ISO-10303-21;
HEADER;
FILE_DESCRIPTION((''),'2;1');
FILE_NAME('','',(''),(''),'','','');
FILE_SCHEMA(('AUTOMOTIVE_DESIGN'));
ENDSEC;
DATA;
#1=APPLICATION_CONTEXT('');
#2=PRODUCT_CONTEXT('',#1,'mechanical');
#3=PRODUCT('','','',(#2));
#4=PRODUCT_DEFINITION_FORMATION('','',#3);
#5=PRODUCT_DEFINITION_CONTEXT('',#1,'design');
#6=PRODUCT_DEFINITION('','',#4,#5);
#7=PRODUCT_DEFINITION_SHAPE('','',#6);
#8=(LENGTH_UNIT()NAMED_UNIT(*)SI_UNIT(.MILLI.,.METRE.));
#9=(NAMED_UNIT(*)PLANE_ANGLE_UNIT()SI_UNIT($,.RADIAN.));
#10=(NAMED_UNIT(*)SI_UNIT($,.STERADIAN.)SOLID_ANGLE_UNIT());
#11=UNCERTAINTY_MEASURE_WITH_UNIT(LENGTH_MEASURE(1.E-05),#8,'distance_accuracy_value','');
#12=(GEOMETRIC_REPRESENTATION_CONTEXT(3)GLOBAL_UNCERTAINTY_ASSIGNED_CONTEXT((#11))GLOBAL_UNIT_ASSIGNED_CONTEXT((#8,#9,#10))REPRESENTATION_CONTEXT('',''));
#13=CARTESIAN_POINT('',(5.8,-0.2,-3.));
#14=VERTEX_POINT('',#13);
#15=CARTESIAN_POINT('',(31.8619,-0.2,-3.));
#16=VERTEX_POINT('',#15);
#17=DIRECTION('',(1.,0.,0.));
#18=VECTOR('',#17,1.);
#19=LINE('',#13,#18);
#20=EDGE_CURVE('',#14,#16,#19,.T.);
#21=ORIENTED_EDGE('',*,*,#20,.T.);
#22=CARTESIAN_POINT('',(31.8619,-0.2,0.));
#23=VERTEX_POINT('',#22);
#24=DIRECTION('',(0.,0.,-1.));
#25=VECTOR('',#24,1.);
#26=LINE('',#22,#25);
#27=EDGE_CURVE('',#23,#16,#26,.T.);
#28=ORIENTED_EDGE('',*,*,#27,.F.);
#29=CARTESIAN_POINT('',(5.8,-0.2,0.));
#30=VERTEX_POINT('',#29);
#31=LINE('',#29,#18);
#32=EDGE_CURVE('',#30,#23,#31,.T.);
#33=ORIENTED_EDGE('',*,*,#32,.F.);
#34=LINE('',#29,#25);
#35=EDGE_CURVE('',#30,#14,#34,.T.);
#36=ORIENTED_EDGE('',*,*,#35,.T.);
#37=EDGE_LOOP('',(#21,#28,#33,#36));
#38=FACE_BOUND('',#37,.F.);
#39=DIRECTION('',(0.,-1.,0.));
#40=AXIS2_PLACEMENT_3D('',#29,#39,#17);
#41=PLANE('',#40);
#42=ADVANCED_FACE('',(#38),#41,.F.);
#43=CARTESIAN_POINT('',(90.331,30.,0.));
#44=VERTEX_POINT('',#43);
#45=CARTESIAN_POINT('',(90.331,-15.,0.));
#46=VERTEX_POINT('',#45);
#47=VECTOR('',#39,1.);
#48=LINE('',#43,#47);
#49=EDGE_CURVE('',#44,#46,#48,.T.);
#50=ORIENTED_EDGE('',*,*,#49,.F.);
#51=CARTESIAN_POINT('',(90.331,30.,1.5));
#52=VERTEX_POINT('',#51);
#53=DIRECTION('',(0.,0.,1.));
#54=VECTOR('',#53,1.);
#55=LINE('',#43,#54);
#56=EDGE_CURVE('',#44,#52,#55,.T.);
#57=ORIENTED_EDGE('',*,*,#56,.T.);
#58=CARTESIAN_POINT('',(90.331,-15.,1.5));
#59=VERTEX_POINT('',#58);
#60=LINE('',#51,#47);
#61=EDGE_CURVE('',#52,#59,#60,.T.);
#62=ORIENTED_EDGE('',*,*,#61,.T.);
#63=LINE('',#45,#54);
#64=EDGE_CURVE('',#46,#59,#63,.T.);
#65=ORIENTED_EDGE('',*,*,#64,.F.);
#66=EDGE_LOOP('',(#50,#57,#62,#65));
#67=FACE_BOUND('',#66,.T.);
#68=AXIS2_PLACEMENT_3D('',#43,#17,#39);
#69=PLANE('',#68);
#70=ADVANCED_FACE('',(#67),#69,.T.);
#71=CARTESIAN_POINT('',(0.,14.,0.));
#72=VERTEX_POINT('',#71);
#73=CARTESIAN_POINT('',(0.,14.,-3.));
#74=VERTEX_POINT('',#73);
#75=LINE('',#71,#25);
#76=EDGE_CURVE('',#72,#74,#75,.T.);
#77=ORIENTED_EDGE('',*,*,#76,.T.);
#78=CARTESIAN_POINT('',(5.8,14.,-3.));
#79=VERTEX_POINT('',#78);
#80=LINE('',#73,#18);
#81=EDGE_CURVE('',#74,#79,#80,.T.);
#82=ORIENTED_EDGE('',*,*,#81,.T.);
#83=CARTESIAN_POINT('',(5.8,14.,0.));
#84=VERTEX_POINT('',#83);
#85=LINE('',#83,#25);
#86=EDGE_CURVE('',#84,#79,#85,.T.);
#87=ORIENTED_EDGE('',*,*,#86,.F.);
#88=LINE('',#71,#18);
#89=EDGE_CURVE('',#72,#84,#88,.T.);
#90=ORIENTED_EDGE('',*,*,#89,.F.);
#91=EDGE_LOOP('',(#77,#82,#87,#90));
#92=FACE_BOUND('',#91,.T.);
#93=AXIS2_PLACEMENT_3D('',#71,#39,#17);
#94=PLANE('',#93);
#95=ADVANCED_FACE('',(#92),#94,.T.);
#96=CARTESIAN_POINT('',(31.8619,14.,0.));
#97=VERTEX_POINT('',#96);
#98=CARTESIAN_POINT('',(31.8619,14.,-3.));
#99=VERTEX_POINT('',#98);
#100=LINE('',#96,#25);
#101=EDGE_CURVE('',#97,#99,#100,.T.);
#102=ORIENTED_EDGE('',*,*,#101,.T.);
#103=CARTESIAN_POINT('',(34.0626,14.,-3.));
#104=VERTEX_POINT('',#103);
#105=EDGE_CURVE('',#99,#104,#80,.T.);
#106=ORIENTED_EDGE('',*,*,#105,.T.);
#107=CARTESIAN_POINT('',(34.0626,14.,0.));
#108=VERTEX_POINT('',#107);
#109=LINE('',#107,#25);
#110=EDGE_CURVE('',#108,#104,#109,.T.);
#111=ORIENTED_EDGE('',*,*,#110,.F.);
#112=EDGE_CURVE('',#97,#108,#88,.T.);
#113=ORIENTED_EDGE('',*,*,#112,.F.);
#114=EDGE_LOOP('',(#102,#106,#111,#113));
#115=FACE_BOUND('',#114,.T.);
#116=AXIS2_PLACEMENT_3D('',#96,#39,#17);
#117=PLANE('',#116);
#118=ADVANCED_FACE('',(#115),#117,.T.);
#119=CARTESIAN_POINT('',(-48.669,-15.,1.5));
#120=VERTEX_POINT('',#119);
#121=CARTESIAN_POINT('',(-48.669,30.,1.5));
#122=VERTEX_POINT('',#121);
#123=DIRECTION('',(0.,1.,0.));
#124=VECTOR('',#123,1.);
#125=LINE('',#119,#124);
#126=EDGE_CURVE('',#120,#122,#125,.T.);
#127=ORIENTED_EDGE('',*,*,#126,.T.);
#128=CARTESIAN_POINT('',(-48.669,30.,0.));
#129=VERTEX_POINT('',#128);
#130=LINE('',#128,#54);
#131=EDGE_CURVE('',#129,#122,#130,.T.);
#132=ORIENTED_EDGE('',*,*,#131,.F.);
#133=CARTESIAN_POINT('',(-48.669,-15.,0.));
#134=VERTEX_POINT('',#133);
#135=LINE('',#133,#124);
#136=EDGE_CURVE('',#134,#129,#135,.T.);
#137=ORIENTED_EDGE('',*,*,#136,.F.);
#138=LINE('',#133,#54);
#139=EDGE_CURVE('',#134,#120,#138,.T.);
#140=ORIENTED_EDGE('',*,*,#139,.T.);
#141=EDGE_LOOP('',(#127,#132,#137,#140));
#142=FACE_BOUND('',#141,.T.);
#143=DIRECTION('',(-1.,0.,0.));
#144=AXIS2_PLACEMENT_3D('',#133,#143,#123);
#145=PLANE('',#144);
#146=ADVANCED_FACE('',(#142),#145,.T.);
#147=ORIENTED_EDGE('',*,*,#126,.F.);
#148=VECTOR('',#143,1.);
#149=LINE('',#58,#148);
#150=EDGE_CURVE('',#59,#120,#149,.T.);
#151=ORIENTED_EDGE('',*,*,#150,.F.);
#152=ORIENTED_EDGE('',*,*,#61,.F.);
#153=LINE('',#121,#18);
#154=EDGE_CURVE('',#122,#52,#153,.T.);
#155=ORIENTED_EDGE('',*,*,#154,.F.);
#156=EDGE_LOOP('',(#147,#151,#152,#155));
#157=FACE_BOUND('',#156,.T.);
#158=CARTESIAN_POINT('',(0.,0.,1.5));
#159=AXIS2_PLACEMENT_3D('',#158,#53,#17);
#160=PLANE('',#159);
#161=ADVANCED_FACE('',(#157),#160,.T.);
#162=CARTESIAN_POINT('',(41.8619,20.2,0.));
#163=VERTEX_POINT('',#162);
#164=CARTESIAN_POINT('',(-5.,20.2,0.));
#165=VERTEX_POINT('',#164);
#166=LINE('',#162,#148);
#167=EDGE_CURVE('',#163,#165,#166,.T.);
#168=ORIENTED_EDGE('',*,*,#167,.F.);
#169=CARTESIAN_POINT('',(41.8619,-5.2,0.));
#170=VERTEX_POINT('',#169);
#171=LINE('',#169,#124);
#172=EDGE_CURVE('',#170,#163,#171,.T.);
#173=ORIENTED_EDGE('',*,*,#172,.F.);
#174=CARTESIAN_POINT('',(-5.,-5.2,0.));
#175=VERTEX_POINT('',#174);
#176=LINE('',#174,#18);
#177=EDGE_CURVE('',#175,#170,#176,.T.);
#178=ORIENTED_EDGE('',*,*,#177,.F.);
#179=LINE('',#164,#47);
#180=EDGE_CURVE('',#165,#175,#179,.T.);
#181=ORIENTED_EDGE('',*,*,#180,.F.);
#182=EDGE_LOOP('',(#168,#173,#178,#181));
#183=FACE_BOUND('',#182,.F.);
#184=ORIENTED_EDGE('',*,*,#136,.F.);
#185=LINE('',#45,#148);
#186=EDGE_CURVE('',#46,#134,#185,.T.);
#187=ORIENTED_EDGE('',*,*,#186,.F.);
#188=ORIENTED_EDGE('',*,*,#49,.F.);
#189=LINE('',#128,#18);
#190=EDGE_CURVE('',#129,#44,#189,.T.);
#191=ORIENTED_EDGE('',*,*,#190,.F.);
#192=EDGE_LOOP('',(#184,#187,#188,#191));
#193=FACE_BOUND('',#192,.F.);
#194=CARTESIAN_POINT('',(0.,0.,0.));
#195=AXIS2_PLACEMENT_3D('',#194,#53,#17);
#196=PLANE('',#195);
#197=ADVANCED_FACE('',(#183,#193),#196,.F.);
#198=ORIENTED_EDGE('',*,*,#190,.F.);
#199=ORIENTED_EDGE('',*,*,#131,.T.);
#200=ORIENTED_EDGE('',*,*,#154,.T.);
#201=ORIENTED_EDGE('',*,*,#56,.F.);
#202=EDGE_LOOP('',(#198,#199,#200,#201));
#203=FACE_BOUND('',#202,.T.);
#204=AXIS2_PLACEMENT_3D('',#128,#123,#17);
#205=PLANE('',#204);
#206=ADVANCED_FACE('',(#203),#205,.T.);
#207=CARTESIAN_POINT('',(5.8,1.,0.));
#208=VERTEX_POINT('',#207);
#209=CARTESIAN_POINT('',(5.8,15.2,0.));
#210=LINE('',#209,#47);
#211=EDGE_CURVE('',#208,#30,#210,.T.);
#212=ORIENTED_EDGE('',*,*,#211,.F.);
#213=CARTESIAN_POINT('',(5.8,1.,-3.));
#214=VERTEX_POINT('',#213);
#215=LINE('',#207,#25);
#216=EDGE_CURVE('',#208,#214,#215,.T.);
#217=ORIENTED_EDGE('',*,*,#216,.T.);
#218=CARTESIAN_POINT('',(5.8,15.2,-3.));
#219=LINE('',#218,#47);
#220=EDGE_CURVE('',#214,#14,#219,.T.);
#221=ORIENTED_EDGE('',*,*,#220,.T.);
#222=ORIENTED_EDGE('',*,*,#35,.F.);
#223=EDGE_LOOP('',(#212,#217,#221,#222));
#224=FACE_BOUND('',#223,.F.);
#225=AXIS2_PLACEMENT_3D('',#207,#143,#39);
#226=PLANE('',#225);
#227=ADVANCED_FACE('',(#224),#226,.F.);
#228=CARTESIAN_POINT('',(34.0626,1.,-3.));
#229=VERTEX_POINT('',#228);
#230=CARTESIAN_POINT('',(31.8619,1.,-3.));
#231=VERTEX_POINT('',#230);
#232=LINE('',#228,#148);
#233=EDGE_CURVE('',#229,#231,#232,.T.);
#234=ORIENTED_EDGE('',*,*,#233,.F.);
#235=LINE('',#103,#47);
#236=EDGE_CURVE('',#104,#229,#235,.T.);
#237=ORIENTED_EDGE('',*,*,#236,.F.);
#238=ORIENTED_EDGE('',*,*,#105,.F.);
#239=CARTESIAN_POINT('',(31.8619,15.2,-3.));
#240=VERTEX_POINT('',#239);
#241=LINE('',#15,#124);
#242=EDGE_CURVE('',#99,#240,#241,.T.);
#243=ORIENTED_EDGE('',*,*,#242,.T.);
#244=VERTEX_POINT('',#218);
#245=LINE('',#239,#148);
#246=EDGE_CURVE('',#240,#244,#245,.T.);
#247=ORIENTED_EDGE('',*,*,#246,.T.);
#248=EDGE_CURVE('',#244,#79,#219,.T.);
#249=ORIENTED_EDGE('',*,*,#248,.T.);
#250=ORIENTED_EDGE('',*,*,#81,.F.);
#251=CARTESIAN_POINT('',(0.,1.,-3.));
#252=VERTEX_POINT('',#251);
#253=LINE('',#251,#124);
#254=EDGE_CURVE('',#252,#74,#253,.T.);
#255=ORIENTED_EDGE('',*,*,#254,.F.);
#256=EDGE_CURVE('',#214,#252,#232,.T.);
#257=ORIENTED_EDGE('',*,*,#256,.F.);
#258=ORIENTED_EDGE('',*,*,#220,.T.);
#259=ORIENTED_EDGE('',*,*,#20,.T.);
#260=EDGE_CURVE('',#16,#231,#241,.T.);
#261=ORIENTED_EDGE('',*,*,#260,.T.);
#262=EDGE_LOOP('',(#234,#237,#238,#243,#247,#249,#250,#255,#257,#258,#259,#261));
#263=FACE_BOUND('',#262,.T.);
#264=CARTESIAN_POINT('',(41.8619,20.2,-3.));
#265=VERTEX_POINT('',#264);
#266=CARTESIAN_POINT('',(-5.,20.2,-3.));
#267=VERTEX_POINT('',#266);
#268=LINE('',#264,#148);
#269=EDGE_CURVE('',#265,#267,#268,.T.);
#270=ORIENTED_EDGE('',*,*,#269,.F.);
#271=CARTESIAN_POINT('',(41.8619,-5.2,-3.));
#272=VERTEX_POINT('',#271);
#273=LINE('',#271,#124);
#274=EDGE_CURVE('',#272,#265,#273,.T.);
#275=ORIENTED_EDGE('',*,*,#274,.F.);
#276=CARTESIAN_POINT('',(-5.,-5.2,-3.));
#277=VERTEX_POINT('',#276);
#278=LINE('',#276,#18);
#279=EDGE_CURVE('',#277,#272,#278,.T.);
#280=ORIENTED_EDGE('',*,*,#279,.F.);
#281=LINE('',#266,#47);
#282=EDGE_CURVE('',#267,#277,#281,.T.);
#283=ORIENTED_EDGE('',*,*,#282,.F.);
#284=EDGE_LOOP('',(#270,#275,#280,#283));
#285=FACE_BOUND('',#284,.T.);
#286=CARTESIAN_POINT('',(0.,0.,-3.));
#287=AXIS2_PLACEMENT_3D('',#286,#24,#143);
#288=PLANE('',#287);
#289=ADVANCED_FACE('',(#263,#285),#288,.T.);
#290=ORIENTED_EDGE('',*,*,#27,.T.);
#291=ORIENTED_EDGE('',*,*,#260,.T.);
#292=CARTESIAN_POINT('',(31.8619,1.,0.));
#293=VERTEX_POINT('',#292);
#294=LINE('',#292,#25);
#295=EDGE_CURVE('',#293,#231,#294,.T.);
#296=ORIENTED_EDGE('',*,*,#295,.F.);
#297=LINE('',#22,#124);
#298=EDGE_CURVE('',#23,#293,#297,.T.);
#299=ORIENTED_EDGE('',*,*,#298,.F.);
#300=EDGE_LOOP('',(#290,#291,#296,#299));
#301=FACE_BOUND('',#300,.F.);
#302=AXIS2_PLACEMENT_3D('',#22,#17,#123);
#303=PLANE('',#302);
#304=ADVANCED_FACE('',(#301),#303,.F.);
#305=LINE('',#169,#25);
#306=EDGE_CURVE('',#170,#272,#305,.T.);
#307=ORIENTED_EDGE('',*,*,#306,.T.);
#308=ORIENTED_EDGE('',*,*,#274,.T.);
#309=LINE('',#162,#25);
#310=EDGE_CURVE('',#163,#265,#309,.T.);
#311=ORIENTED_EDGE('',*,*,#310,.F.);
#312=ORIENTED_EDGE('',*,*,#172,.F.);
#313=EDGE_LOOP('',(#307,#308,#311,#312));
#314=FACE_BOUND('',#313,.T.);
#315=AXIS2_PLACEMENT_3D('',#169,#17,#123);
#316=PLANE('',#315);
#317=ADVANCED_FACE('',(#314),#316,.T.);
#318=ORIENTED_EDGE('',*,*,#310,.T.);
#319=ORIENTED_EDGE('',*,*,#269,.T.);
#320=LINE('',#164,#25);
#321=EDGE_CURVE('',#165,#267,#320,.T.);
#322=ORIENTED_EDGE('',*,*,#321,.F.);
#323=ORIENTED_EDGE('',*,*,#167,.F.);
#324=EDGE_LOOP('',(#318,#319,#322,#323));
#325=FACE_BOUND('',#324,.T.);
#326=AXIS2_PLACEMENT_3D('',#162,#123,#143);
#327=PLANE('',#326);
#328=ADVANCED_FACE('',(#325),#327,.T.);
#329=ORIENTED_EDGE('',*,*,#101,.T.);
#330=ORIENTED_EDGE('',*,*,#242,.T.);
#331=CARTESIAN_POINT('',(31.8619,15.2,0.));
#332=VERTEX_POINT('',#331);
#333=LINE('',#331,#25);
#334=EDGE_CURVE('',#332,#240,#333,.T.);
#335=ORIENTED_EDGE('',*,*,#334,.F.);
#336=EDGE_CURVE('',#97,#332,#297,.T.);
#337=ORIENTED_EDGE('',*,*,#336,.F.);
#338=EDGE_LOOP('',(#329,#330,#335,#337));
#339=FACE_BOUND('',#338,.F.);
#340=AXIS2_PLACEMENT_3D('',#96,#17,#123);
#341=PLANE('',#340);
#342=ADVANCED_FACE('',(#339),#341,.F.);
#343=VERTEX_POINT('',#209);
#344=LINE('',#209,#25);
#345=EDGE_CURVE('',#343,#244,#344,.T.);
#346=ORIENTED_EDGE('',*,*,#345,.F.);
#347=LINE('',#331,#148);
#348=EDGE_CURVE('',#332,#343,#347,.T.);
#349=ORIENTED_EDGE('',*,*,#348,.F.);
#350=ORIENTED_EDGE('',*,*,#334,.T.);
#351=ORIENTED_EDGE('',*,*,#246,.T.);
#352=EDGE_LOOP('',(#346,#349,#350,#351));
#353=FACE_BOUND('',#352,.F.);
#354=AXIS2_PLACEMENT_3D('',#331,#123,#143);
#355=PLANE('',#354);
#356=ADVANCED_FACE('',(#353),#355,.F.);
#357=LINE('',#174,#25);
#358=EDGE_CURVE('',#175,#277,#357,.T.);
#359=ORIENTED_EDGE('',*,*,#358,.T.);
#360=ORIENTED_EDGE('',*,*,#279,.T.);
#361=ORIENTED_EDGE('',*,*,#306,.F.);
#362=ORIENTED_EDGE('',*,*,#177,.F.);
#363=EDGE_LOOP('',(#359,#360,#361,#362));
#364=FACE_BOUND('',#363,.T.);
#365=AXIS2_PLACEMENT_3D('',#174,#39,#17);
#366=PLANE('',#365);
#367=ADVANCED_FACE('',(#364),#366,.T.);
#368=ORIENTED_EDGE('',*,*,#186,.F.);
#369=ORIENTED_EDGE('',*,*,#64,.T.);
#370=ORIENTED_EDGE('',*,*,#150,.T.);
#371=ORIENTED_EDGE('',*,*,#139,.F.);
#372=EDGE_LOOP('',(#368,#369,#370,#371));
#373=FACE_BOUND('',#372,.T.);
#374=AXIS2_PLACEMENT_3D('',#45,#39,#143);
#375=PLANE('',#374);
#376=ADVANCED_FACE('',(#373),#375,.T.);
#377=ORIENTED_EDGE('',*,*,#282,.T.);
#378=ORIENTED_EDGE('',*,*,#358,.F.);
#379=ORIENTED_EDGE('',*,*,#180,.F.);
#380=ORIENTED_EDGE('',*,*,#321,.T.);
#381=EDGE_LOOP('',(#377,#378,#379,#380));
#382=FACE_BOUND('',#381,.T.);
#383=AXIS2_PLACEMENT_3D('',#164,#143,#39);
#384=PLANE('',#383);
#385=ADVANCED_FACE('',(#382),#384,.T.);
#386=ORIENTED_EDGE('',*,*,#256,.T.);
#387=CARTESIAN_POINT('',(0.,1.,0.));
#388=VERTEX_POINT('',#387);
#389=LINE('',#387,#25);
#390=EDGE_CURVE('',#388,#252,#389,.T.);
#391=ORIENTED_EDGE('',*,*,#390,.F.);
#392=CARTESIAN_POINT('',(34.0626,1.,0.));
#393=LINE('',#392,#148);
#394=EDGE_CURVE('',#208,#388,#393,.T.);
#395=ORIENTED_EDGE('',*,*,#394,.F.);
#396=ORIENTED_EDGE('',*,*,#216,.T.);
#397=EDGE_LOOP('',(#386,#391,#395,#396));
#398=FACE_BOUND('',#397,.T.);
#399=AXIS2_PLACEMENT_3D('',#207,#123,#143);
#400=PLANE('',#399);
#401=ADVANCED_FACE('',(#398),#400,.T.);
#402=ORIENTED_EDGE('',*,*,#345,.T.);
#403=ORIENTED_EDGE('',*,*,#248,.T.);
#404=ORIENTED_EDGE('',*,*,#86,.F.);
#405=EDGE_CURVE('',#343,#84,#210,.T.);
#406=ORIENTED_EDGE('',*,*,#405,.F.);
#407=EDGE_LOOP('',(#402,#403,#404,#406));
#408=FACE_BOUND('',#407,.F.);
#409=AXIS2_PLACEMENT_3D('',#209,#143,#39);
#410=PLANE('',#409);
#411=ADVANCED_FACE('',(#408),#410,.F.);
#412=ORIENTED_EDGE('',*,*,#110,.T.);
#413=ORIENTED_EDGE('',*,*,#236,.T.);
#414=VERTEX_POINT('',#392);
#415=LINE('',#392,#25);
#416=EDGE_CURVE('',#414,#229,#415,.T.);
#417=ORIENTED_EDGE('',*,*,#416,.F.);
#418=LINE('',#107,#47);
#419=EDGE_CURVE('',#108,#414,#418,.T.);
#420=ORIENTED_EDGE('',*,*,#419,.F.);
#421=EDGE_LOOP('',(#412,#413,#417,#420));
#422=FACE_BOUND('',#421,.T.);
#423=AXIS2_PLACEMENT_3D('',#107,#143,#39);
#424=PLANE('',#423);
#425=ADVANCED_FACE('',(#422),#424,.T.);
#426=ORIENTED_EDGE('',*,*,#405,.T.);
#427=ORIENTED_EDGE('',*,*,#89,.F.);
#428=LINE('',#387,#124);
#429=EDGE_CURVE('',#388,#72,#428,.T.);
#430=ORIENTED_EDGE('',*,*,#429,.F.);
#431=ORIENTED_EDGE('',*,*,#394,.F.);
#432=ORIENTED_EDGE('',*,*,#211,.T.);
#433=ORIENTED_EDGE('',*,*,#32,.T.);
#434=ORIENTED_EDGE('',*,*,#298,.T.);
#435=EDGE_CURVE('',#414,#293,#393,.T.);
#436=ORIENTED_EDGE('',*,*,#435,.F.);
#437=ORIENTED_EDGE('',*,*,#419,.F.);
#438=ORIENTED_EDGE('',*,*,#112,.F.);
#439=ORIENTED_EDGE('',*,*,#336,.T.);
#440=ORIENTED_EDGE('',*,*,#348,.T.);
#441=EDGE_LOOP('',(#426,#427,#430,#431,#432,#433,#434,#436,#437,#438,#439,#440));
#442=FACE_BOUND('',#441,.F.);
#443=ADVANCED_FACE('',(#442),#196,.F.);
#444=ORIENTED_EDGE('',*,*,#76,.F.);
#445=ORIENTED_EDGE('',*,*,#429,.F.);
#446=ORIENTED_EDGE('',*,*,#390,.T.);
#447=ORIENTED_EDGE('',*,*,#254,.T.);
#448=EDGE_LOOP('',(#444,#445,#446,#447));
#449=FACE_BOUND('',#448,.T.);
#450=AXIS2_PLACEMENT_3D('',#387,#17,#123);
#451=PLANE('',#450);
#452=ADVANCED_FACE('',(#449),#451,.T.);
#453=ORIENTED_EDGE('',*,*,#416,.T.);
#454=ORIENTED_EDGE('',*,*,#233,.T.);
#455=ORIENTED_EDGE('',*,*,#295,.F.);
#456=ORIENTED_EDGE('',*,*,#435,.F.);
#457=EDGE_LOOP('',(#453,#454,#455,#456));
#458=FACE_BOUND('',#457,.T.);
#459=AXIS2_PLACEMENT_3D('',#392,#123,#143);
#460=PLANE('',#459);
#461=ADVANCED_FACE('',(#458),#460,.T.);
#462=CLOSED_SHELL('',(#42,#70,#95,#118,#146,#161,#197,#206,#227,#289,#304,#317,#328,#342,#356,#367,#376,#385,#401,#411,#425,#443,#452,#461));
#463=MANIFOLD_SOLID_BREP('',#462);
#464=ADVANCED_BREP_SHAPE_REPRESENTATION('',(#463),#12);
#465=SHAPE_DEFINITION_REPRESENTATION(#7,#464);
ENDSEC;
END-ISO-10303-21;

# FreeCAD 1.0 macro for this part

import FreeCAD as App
import Part
import Sketcher
from FreeCAD import Vector
Q = App.Units.Quantity

doc = App.newDocument("Part")
body = doc.addObject("PartDesign::Body", "Body")

# Sketch on XY plane
sketch1 = body.newObject("Sketcher::SketchObject", "Sketch")
sketch1.AttachmentSupport = (doc.getObject("XY_Plane"), [""])
sketch1.MapMode = "FlatFace"
sketch1.addGeometry([
    Part.LineSegment(Vector(-49, -15, 0), Vector(90, -15, 0)),
    Part.LineSegment(Vector(90, -15, 0), Vector(90, 30, 0)),
    Part.LineSegment(Vector(90, 30, 0), Vector(-49, 30, 0)),
    Part.LineSegment(Vector(-49, 30, 0), Vector(-49, -15, 0)),
], False)
sketch1.addConstraint([
    Sketcher.Constraint("Coincident", 0, 2, 1, 1),
    Sketcher.Constraint("Coincident", 1, 2, 2, 1),
    Sketcher.Constraint("Coincident", 2, 2, 3, 1),
    Sketcher.Constraint("Coincident", 3, 2, 0, 1),
    Sketcher.Constraint("Horizontal", 0),
    Sketcher.Constraint("Vertical", 1),
    Sketcher.Constraint("Horizontal", 2),
    Sketcher.Constraint("Vertical", 3),
    Sketcher.Constraint("DistanceY", 0, 2, -1, 1, Q("15 mm")),
    Sketcher.Constraint("DistanceX", 0, 1, 0, 2, Q("139 mm")),
    Sketcher.Constraint("DistanceY", 1, 1, 1, 2, Q("45 mm")),
    Sketcher.Constraint("DistanceX", -1, 1, 0, 2, Q("90.331 mm")),
])
pad1 = body.newObject("PartDesign::Pad", "Pad")
pad1.Profile = sketch1
pad1.Length = 1.5

# Sketch on XY plane
sketch2 = body.newObject("Sketcher::SketchObject", "Sketch001")
sketch2.AttachmentSupport = (doc.getObject("XY_Plane"), [""])
sketch2.MapMode = "FlatFace"
sketch2.addGeometry([
    Part.LineSegment(Vector(-5, 20.2, 0), Vector(41.9, 20.2, 0)),  # 0
    Part.LineSegment(Vector(41.9, 20.2, 0), Vector(41.9, -5.2, 0)),  # 1
    Part.LineSegment(Vector(41.9, -5.2, 0), Vector(-5, -5.2, 0)),  # 2
    Part.LineSegment(Vector(-5, -5.2, 0), Vector(-5, 20.2, 0)),  # 3
    Part.LineSegment(Vector(5.8, 15.2, 0), Vector(5.8, 14, 0)),  # 4
    Part.LineSegment(Vector(5.8, 14, 0), Vector(0, 14, 0)),  # 5
    Part.LineSegment(Vector(0, 14, 0), Vector(0, 1, 0)),  # 6
    Part.LineSegment(Vector(0, 1, 0), Vector(5.8, 1, 0)),  # 7
    Part.LineSegment(Vector(5.8, 1, 0), Vector(5.8, -0.2, 0)),  # 8
    Part.LineSegment(Vector(5.8, -0.2, 0), Vector(31.9, -0.2, 0)),  # 9
    Part.LineSegment(Vector(31.9, -0.2, 0), Vector(31.9, 1, 0)),  # 10
    Part.LineSegment(Vector(31.9, 1, 0), Vector(34.1, 1, 0)),  # 11
    Part.LineSegment(Vector(34.1, 1, 0), Vector(34.1, 14, 0)),  # 12
    Part.LineSegment(Vector(34.1, 14, 0), Vector(31.9, 14, 0)),  # 13
    Part.LineSegment(Vector(31.9, 14, 0), Vector(31.9, 15.2, 0)),  # 14
    Part.LineSegment(Vector(31.9, 15.2, 0), Vector(5.8, 15.2, 0)),  # 15
], False)
sketch2.addConstraint([
    Sketcher.Constraint("Coincident", 0, 2, 1, 1),
    Sketcher.Constraint("Coincident", 1, 2, 2, 1),
    Sketcher.Constraint("Coincident", 2, 2, 3, 1),
    Sketcher.Constraint("Coincident", 3, 2, 0, 1),
    Sketcher.Constraint("Coincident", 4, 2, 5, 1),
    Sketcher.Constraint("Coincident", 5, 2, 6, 1),
    Sketcher.Constraint("Coincident", 6, 2, 7, 1),
    Sketcher.Constraint("Coincident", 7, 2, 8, 1),
    Sketcher.Constraint("Coincident", 8, 2, 9, 1),
    Sketcher.Constraint("Coincident", 9, 2, 10, 1),
    Sketcher.Constraint("Coincident", 10, 2, 11, 1),
    Sketcher.Constraint("Coincident", 11, 2, 12, 1),
    Sketcher.Constraint("Coincident", 12, 2, 13, 1),
    Sketcher.Constraint("Coincident", 13, 2, 14, 1),
    Sketcher.Constraint("Coincident", 14, 2, 15, 1),
    Sketcher.Constraint("Coincident", 15, 2, 4, 1),
    Sketcher.Constraint("Horizontal", 0),
    Sketcher.Constraint("Vertical", 1),
    Sketcher.Constraint("Horizontal", 2),
    Sketcher.Constraint("Vertical", 3),
    Sketcher.Constraint("Vertical", 4),
    Sketcher.Constraint("Horizontal", 5),
    Sketcher.Constraint("Vertical", 6),
    Sketcher.Constraint("Horizontal", 7),
    Sketcher.Constraint("Vertical", 8),
    Sketcher.Constraint("Horizontal", 9),
    Sketcher.Constraint("Vertical", 10),
    Sketcher.Constraint("Horizontal", 11),
    Sketcher.Constraint("Vertical", 12),
    Sketcher.Constraint("Horizontal", 13),
    Sketcher.Constraint("Vertical", 14),
    Sketcher.Constraint("Horizontal", 15),
    Sketcher.Constraint("PointOnObject", 5, 2, -2),
    Sketcher.Constraint("Horizontal", 7, 2, 10, 2),
    Sketcher.Constraint("Horizontal", 5, 2, 12, 2),
    Sketcher.Constraint("Vertical", 4, 2, 7, 2),
    Sketcher.Constraint("Vertical", 10, 2, 13, 2),
    Sketcher.Constraint("Equal", 4, 8),
    Sketcher.Constraint("DistanceX", 2, 2, -1, 1, Q("5 mm")),
    Sketcher.Constraint("DistanceY", 2, 2, 8, 2, Q("5 mm")),
    Sketcher.Constraint("DistanceX", 9, 2, 1, 2, Q("10 mm")),
    Sketcher.Constraint("DistanceY", 14, 2, 0, 2, Q("5 mm")),
    Sketcher.Constraint("DistanceY", 8, 2, -1, 1, Q("0.2 mm")),
    Sketcher.Constraint("DistanceY", 6, 2, 6, 1, Q("13 mm")),
    Sketcher.Constraint("DistanceX", 5, 2, 5, 1, Q("5.8 mm")),
    Sketcher.Constraint("DistanceY", 1, 2, 1, 1, Q("25.4 mm")),
    Sketcher.Constraint("DistanceX", 0, 1, 0, 2, Q("46.862 mm")),
    Sketcher.Constraint("DistanceX", 11, 1, 11, 2, Q("2.2007 mm")),
])
pad2 = body.newObject("PartDesign::Pad", "Pad001")
pad2.Profile = sketch2
pad2.Length = 3
pad2.Reversed = True

doc.recompute()
